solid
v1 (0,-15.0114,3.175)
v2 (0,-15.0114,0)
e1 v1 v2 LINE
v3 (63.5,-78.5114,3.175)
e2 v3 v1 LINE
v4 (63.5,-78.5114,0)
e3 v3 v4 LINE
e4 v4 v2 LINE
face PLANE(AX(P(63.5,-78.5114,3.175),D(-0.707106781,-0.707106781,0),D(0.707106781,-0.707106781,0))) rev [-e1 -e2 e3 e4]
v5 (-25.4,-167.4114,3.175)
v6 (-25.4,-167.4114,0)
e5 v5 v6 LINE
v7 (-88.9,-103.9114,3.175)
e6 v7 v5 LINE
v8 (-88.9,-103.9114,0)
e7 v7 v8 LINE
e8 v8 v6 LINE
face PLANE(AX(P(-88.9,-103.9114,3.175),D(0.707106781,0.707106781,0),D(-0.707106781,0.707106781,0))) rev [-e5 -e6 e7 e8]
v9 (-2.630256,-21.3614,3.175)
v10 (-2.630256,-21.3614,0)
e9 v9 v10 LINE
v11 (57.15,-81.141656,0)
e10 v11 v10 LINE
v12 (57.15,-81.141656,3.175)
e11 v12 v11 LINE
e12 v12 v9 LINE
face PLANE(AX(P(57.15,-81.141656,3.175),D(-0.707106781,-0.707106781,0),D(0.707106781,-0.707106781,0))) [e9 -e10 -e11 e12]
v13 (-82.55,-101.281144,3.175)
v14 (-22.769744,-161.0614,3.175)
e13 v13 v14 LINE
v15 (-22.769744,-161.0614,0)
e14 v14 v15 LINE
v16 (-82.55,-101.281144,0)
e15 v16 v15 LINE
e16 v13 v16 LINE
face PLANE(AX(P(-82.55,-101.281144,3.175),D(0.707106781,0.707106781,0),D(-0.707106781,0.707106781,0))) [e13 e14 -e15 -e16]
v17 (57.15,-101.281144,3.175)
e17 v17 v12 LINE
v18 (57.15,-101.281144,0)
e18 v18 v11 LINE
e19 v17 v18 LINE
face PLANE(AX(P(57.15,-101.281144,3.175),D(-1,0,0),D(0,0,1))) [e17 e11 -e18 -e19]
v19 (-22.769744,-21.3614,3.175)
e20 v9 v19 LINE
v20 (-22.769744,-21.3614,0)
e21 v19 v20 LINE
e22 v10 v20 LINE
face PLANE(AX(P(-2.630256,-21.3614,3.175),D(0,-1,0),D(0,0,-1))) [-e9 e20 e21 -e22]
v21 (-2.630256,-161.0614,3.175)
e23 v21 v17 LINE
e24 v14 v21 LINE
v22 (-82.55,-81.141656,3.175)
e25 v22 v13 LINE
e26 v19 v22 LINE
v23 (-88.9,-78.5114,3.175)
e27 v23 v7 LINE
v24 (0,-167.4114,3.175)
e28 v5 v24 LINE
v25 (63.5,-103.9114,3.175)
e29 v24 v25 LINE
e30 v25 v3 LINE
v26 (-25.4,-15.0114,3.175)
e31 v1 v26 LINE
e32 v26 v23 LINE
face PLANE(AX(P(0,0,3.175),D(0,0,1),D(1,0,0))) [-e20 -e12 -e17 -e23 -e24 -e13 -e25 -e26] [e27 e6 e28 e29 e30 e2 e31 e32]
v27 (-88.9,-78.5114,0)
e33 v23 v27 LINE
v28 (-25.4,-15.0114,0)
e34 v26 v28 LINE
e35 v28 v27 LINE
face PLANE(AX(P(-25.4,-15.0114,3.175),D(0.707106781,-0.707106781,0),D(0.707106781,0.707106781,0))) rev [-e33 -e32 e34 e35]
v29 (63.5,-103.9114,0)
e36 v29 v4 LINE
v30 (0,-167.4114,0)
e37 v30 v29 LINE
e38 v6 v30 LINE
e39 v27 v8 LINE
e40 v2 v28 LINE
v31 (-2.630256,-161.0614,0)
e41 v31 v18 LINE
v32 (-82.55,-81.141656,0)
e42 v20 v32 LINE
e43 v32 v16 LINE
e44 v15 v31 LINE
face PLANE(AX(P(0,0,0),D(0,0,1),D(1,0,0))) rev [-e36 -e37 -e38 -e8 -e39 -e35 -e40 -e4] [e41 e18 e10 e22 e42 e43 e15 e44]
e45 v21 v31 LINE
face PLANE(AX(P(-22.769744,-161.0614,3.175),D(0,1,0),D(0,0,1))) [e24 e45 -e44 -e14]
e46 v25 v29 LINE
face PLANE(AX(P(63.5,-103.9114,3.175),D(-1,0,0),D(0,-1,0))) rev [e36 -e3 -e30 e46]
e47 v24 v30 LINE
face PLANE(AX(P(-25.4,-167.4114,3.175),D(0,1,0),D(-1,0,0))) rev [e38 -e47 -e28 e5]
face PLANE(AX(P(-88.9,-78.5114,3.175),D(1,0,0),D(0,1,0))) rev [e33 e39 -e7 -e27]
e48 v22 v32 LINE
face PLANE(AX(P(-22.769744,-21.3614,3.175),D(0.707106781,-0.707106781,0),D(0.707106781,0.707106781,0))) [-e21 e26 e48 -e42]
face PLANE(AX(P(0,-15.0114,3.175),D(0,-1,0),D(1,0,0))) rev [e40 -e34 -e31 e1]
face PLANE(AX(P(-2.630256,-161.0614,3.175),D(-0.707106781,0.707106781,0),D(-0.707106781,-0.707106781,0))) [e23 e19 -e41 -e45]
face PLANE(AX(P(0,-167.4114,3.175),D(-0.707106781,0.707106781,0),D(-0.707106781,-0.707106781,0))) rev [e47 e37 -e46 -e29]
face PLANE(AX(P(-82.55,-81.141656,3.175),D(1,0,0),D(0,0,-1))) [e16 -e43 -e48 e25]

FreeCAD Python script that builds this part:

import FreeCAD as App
import Part
import Sketcher

V = App.Vector
Q = App.Units.Quantity


def add_polygon(sketch, points):
    """Adds a closed chain of lines whose ends are joined by coincident constraints."""
    first, n = sketch.GeometryCount, len(points)
    for a, b in zip(points, points[1:] + points[:1]):
        sketch.addGeometry(Part.LineSegment(App.Vector(*a, 0), App.Vector(*b, 0)), False)
    for i in range(n):
        sketch.addConstraint(Sketcher.Constraint("Coincident", first + i, 2, first + (i + 1) % n, 1))

doc = App.newDocument("Part")
body = doc.addObject("PartDesign::Body", "Body")

# Sketch on XY plane
sketch1 = body.newObject("Sketcher::SketchObject", "Sketch")
sketch1.AttachmentSupport = (doc.getObject("XY_Plane"), [""])
sketch1.MapMode = "FlatFace"
add_polygon(sketch1, [(64, -79), (0, -15), (-25, -15), (-89, -79), (-89, -104), (-25, -167), (0, -167), (64, -104)])  # lines 0-7
add_polygon(sketch1, [(-3, -21), (57, -81), (57, -101), (-3, -161), (-23, -161), (-83, -101), (-83, -81), (-23, -21)])  # lines 8-15
sketch1.addConstraint([
    Sketcher.Constraint("Horizontal", 1),
    Sketcher.Constraint("Vertical", 3),
    Sketcher.Constraint("Horizontal", 5),
    Sketcher.Constraint("Vertical", 7),
    Sketcher.Constraint("Vertical", 9),
    Sketcher.Constraint("Horizontal", 11),
    Sketcher.Constraint("Vertical", 13),
    Sketcher.Constraint("Horizontal", 15),
    Sketcher.Constraint("PointOnObject", 0, 2, -2),
    Sketcher.Constraint("PointOnObject", 5, 2, -2),
    Sketcher.Constraint("Perpendicular", 0, 2),
    Sketcher.Constraint("Perpendicular", 2, 4),
    Sketcher.Constraint("Perpendicular", 4, 6),
    Sketcher.Constraint("Perpendicular", 6, 8),
    Sketcher.Constraint("Perpendicular", 8, 10),
    Sketcher.Constraint("Perpendicular", 10, 12),
    Sketcher.Constraint("Perpendicular", 12, 14),
    Sketcher.Constraint("Horizontal", 3, 2, 6, 2),
    Sketcher.Constraint("Horizontal", 2, 2, 7, 2),
    Sketcher.Constraint("Horizontal", 9, 2, 12, 2),
    Sketcher.Constraint("Horizontal", 8, 2, 13, 2),
    Sketcher.Constraint("Vertical", 1, 2, 4, 2),
    Sketcher.Constraint("Vertical", 11, 2, 14, 2),
    Sketcher.Constraint("Equal", 5, 3),
    Sketcher.Constraint("Equal", 15, 9),
    Sketcher.Constraint("DistanceX", 1, 2, 1, 1, Q("1 in")),
    Sketcher.Constraint("DistanceY", 4, 2, 1, 2, Q("6 in")),
    Sketcher.Constraint("DistanceX", -1, 1, 8, 2, Q("2.25 in")),
    Sketcher.Constraint("DistanceX", 12, 2, -1, 1, Q("3.25 in")),
    Sketcher.Constraint("DistanceY", 5, 2, 10, 2, Q("0.25 in")),
    Sketcher.Constraint("DistanceY", 0, 2, -1, 1, Q("0.591 in")),
    Sketcher.Constraint("Distance", 8, 84.542049),
])
pad1 = body.newObject("PartDesign::Pad", "Pad")
pad1.Profile = sketch1
pad1.Length = Q("0.125 in")

doc.recompute()
